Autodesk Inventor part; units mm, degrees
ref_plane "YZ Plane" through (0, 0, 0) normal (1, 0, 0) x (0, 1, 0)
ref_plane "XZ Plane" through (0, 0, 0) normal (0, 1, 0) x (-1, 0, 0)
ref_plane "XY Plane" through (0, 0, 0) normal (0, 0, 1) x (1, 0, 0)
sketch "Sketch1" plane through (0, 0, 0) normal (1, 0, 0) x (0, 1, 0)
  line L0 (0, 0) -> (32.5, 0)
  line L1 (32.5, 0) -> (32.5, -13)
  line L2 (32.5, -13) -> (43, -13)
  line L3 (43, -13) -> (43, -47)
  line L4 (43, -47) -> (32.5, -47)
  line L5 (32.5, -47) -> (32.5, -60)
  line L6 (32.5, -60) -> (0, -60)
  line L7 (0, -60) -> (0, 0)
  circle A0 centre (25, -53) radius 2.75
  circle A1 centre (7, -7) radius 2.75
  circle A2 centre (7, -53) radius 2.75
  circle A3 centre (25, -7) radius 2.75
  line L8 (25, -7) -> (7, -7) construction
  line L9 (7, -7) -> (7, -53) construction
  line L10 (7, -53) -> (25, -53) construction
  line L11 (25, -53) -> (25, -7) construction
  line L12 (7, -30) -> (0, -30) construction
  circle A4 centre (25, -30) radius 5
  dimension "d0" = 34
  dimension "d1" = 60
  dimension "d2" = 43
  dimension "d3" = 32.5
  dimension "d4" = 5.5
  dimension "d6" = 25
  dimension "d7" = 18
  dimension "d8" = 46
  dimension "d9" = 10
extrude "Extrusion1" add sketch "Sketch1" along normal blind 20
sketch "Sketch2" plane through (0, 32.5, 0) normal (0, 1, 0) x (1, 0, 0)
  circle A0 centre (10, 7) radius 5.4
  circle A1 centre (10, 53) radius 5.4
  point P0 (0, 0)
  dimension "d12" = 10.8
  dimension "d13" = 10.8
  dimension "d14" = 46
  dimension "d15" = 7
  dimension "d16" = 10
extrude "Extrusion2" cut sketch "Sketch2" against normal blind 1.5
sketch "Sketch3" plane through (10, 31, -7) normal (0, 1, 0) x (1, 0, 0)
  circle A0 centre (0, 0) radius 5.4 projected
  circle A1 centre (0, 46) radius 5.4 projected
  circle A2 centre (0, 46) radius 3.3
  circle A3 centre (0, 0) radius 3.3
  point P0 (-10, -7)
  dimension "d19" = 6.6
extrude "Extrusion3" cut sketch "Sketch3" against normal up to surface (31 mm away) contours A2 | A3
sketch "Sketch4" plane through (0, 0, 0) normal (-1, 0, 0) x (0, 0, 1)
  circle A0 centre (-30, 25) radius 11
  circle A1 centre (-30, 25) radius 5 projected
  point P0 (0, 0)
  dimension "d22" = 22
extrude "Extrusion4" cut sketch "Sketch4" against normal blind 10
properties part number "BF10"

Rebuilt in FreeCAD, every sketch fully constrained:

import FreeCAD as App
import Part
import Sketcher
Q = App.Units.Quantity


def add_polygon(sketch, points):
    """Adds a closed chain of lines whose ends are joined by coincident constraints."""
    first, n = sketch.GeometryCount, len(points)
    for a, b in zip(points, points[1:] + points[:1]):
        sketch.addGeometry(Part.LineSegment(App.Vector(*a, 0), App.Vector(*b, 0)), False)
    for i in range(n):
        sketch.addConstraint(Sketcher.Constraint("Coincident", first + i, 2, first + (i + 1) % n, 1))

doc = App.newDocument("Part")
body = doc.addObject("PartDesign::Body", "Body")

sketch1 = body.newObject("Sketcher::SketchObject", "Sketch")
sketch1.AttachmentSupport = (doc.getObject("YZ_Plane"), [""])
sketch1.MapMode = "FlatFace"
add_polygon(sketch1, [(32.5, 0), (0, 0), (0, -60), (32.5, -60), (32.5, -47), (43, -47), (43, -13), (32.5, -13)])
sketch1.addGeometry(Part.Circle(App.Vector(7, -53, 0), App.Vector(0, 0, 1), 2.8), False)
sketch1.addGeometry(Part.Circle(App.Vector(25, -53, 0), App.Vector(0, 0, 1), 2.8), False)
sketch1.addGeometry(Part.Circle(App.Vector(7, -7, 0), App.Vector(0, 0, 1), 2.8), False)
sketch1.addGeometry(Part.Circle(App.Vector(25, -30, 0), App.Vector(0, 0, 1), 5), False)
sketch1.addGeometry(Part.Circle(App.Vector(25, -7, 0), App.Vector(0, 0, 1), 2.8), False)
sketch1.addConstraint(Sketcher.Constraint("Horizontal", 0))
sketch1.addConstraint(Sketcher.Constraint("Vertical", 1))
sketch1.addConstraint(Sketcher.Constraint("Horizontal", 2))
sketch1.addConstraint(Sketcher.Constraint("Vertical", 3))
sketch1.addConstraint(Sketcher.Constraint("Horizontal", 4))
sketch1.addConstraint(Sketcher.Constraint("Vertical", 5))
sketch1.addConstraint(Sketcher.Constraint("Horizontal", 6))
sketch1.addConstraint(Sketcher.Constraint("Vertical", 7))
sketch1.addConstraint(Sketcher.Constraint("Coincident", 0, 2, -1, 1))
sketch1.addConstraint(Sketcher.Constraint("Equal", 8, 9))
sketch1.addConstraint(Sketcher.Constraint("Equal", 9, 10))
sketch1.addConstraint(Sketcher.Constraint("Equal", 10, 12))
sketch1.addConstraint(Sketcher.Constraint("Horizontal", 8, 3, 9, 3))
sketch1.addConstraint(Sketcher.Constraint("Horizontal", 10, 3, 12, 3))
sketch1.addConstraint(Sketcher.Constraint("Vertical", 8, 3, 10, 3))
sketch1.addConstraint(Sketcher.Constraint("Vertical", 9, 3, 11, 3))
sketch1.addConstraint(Sketcher.Constraint("Vertical", 11, 3, 12, 3))
sketch1.addConstraint(Sketcher.Constraint("Vertical", 3, 2, 6, 2))
sketch1.addConstraint(Sketcher.Constraint("Equal", 3, 7))
sketch1.addConstraint(Sketcher.Constraint("Diameter", 11, Q("10 mm")))
sketch1.addConstraint(Sketcher.Constraint("Diameter", 8, Q("5.5 mm")))
sketch1.addConstraint(Sketcher.Constraint("DistanceY", 1, 2, 1, 1, Q("60 mm")))
sketch1.addConstraint(Sketcher.Constraint("DistanceY", 5, 1, 5, 2, Q("34 mm")))
sketch1.addConstraint(Sketcher.Constraint("DistanceX", 0, 2, 0, 1, Q("32.5 mm")))
sketch1.addConstraint(Sketcher.Constraint("DistanceX", -1, 1, 9, 3, Q("25 mm")))
sketch1.addConstraint(Sketcher.Constraint("DistanceX", -1, 1, 4, 2, Q("43 mm")))
sketch1.addConstraint(Sketcher.Constraint("DistanceX", 8, 3, 9, 3, Q("18 mm")))
sketch1.addConstraint(Sketcher.Constraint("DistanceY", 8, 3, 10, 3, Q("46 mm")))
sketch1.addConstraint(Sketcher.Constraint("DistanceY", 8, 3, -1, 1, Q("53 mm")))
sketch1.addConstraint(Sketcher.Constraint("DistanceY", 11, 3, -1, 1, Q("30 mm")))
pad1 = body.newObject("PartDesign::Pad", "Pad")
pad1.Profile = sketch1
pad1.Length = 20

sketch2 = body.newObject("Sketcher::SketchObject", "Sketch001")
sketch2.AttachmentSupport = (doc.getObject("XZ_Plane"), [""])
sketch2.MapMode = "FlatFace"
sketch2.AttachmentOffset = App.Placement(App.Vector(0, 0, -32.5), App.Rotation())
sketch2.addGeometry(Part.Circle(App.Vector(10, -7, 0), App.Vector(0, 0, 1), 5), False)
sketch2.addGeometry(Part.Circle(App.Vector(10, -53, 0), App.Vector(0, 0, 1), 5), False)
sketch2.addConstraint(Sketcher.Constraint("Equal", 0, 1))
sketch2.addConstraint(Sketcher.Constraint("Vertical", 0, 3, 1, 3))
sketch2.addConstraint(Sketcher.Constraint("Diameter", 0, Q("10.8 mm")))
sketch2.addConstraint(Sketcher.Constraint("DistanceX", -1, 1, 0, 3, Q("10 mm")))
sketch2.addConstraint(Sketcher.Constraint("DistanceY", 0, 3, -1, 1, Q("7 mm")))
sketch2.addConstraint(Sketcher.Constraint("DistanceY", 1, 3, 0, 3, Q("46 mm")))
pocket1 = body.newObject("PartDesign::Pocket", "Pocket")
pocket1.Profile = sketch2
pocket1.Length = 1.5
pocket1.Reversed = True

sketch3 = body.newObject("Sketcher::SketchObject", "Sketch002")
sketch3.AttachmentSupport = (doc.getObject("XZ_Plane"), [""])
sketch3.MapMode = "FlatFace"
sketch3.AttachmentOffset = App.Placement(App.Vector(0, 0, -31), App.Rotation())
sketch3.addGeometry(Part.Circle(App.Vector(10, -53, 0), App.Vector(0, 0, 1), 3.3), False)
sketch3.addGeometry(Part.Circle(App.Vector(10, -7, 0), App.Vector(0, 0, 1), 3.3), False)
sketch3.addConstraint(Sketcher.Constraint("Equal", 0, 1))
sketch3.addConstraint(Sketcher.Constraint("Vertical", 0, 3, 1, 3))
sketch3.addConstraint(Sketcher.Constraint("Diameter", 0, Q("6.6 mm")))
sketch3.addConstraint(Sketcher.Constraint("DistanceX", -1, 1, 0, 3, Q("10 mm")))
sketch3.addConstraint(Sketcher.Constraint("DistanceY", 0, 3, -1, 1, Q("53 mm")))
sketch3.addConstraint(Sketcher.Constraint("DistanceY", 1, 3, -1, 1, Q("7 mm")))
pocket2 = body.newObject("PartDesign::Pocket", "Pocket001")
pocket2.Profile = sketch3
pocket2.Length = 31
pocket2.Reversed = True

sketch4 = body.newObject("Sketcher::SketchObject", "Sketch003")
sketch4.AttachmentSupport = (doc.getObject("YZ_Plane"), [""])
sketch4.MapMode = "FlatFace"
sketch4.addGeometry(Part.Circle(App.Vector(25, -30, 0), App.Vector(0, 0, 1), 11), False)
sketch4.addGeometry(Part.Circle(App.Vector(25, -30, 0), App.Vector(0, 0, 1), 5), False)
sketch4.addConstraint(Sketcher.Constraint("Coincident", 1, 3, 0, 3))
sketch4.addConstraint(Sketcher.Constraint("Diameter", 0, Q("22 mm")))
sketch4.addConstraint(Sketcher.Constraint("Diameter", 1, Q("10 mm")))
sketch4.addConstraint(Sketcher.Constraint("DistanceX", -1, 1, 0, 3, Q("25 mm")))
sketch4.addConstraint(Sketcher.Constraint("DistanceY", 0, 3, -1, 1, Q("30 mm")))
pocket3 = body.newObject("PartDesign::Pocket", "Pocket002")
pocket3.Profile = sketch4
pocket3.Length = 10
pocket3.Reversed = True

doc.recompute()
